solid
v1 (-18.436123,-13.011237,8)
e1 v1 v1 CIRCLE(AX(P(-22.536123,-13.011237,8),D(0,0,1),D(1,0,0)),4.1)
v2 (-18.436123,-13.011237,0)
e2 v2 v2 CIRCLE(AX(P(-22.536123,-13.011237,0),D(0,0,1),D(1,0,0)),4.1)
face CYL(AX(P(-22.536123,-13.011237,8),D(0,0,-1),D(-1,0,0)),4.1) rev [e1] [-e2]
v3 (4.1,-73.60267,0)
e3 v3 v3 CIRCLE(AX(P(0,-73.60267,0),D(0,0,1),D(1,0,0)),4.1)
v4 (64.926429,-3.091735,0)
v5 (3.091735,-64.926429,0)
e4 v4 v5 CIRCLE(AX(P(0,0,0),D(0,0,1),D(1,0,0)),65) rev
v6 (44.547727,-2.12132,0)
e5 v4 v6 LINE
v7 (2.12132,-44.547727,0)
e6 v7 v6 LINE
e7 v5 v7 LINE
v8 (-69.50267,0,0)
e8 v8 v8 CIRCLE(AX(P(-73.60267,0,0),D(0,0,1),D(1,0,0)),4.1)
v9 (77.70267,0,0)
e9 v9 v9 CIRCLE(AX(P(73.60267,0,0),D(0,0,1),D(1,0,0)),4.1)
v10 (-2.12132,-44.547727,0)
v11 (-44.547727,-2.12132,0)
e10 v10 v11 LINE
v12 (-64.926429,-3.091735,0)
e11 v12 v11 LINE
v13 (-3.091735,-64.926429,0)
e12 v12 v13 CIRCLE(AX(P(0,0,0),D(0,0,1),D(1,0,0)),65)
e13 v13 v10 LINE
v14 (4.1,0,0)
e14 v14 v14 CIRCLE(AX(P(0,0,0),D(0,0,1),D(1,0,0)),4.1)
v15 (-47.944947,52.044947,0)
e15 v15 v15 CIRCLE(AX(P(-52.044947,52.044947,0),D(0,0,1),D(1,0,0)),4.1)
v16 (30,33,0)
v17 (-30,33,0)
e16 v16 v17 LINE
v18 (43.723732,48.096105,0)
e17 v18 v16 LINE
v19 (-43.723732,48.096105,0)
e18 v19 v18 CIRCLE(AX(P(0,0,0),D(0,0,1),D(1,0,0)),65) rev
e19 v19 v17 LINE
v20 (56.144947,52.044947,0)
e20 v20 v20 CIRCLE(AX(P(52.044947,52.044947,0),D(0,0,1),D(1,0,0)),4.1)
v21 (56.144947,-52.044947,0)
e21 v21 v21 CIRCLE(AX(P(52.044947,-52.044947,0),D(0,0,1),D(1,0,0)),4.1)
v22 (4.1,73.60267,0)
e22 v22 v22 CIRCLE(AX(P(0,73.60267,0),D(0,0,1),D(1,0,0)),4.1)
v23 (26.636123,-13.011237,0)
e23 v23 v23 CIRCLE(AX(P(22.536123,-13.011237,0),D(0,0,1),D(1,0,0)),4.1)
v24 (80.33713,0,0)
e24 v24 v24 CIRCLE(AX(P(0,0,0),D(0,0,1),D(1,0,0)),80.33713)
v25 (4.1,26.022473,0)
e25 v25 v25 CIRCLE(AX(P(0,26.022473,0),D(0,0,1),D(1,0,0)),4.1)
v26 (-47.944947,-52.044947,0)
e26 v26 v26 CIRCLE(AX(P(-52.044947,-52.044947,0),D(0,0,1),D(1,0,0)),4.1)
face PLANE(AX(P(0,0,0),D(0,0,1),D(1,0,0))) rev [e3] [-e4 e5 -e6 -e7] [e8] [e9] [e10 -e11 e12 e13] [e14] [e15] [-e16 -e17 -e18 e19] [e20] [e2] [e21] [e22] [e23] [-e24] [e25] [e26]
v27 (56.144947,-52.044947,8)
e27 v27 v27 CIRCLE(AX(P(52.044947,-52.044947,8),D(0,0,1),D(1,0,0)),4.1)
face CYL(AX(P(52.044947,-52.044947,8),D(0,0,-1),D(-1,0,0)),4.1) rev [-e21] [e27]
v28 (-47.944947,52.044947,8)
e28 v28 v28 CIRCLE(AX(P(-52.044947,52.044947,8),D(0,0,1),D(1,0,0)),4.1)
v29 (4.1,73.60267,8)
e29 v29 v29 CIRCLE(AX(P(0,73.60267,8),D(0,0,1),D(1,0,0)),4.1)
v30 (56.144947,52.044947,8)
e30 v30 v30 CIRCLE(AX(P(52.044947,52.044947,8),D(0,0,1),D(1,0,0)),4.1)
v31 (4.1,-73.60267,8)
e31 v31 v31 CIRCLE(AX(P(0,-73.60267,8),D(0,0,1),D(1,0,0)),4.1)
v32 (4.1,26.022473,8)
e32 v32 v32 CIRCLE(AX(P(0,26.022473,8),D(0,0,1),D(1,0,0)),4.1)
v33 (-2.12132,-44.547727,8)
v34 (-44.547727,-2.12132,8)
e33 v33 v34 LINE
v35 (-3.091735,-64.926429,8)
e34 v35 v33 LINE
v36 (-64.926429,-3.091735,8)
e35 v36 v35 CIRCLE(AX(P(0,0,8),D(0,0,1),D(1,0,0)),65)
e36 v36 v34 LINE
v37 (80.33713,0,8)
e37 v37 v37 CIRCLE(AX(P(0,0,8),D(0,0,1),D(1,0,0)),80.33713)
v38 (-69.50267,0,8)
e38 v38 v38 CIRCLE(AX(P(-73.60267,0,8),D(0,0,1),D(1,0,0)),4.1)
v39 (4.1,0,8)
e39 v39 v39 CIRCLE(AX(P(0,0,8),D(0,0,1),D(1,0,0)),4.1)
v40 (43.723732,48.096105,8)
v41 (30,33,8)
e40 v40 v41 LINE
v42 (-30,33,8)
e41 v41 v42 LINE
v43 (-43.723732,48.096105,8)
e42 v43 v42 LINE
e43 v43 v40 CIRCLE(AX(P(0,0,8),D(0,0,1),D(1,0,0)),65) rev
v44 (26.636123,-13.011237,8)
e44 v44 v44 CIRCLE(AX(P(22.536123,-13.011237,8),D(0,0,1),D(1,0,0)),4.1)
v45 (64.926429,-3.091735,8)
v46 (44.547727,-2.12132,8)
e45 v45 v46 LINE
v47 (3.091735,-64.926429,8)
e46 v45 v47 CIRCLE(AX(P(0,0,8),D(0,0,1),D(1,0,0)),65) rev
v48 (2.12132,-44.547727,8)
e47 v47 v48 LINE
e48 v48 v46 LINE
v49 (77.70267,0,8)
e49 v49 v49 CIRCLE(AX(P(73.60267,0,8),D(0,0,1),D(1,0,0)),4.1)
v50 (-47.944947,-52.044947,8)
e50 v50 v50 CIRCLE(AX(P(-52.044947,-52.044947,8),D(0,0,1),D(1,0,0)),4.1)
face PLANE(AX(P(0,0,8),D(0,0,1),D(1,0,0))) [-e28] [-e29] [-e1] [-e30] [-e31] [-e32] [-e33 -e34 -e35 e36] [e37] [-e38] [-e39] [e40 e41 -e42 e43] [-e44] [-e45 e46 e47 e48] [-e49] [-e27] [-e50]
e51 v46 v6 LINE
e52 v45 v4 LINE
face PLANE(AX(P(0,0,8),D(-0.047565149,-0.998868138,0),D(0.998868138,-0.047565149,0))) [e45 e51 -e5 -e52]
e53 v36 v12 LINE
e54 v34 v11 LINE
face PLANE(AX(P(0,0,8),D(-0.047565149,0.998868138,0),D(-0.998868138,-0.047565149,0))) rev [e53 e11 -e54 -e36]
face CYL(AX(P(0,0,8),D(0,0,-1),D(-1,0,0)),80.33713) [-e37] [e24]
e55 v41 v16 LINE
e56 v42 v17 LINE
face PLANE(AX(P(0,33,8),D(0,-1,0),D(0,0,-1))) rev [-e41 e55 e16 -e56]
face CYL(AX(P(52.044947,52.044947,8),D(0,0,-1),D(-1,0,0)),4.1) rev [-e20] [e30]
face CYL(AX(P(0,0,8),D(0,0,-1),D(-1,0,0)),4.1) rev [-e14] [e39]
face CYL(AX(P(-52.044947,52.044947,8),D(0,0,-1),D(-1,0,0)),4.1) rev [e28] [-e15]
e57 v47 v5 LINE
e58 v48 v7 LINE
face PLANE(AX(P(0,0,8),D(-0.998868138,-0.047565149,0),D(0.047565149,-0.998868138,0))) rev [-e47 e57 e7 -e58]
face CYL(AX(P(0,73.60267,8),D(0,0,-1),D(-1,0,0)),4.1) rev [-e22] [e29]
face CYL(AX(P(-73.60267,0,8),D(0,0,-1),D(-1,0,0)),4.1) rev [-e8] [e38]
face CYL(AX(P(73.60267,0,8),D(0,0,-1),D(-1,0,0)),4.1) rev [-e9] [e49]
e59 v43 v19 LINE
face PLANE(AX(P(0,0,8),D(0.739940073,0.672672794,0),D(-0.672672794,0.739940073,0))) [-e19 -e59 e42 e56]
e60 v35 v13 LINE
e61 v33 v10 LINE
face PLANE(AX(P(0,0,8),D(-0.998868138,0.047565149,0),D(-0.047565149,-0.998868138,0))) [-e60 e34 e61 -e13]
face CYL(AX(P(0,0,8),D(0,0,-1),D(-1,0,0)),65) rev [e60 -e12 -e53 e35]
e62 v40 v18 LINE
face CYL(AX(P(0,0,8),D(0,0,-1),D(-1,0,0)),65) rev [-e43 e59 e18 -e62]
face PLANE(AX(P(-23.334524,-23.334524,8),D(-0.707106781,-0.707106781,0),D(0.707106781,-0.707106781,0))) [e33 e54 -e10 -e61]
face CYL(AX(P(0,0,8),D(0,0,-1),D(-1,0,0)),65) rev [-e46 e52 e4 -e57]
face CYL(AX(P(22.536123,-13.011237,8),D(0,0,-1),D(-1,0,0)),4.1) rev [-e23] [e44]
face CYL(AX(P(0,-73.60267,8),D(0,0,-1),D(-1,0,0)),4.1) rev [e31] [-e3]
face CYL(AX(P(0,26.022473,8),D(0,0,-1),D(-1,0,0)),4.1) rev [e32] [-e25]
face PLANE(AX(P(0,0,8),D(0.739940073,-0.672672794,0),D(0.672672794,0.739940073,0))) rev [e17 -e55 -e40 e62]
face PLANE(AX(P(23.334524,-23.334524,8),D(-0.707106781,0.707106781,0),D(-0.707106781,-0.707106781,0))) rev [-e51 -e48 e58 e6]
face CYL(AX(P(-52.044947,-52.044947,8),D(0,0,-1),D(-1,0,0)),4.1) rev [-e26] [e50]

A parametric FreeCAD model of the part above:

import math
import FreeCAD as App
import Part
import Sketcher

V = App.Vector
Q = App.Units.Quantity

doc = App.newDocument("Part")
body = doc.addObject("PartDesign::Body", "Body")

sketch1 = doc.addObject("Sketcher::SketchObject", "Sketch")
body.addObject(sketch1)
sketch1.AttachmentSupport = (doc.XY_Plane, [""])
sketch1.MapMode = "FlatFace"
sketch1.addGeometry([
    Part.Circle(V(0, 0, 0), V(0, 0, 1), 80.33713),
    Part.Circle(V(-52.044947, -52.044947, 0), V(0, 0, 1), 4.1),
    Part.ArcOfCircle(Part.Circle(V(0, 0, 0), V(0, 0, 1), 65), math.radians(-177.273689), math.radians(-92.726311)),
    Part.LineSegment(V(-64.926429, -3.091735, 0), V(-44.547727, -2.12132, 0)),
    Part.LineSegment(V(-44.547727, -2.12132, 0), V(-2.12132, -44.547727, 0)),
    Part.LineSegment(V(-2.12132, -44.547727, 0), V(-3.091735, -64.926429, 0)),
    Part.Circle(V(-22.536123, -13.011237, 0), V(0, 0, 1), 4.1),
    Part.Circle(V(0, -73.60267, 0), V(0, 0, 1), 4.1),
    Part.Circle(V(52.044947, -52.044947, 0), V(0, 0, 1), 4.1),
    Part.ArcOfCircle(Part.Circle(V(0, 0, 0), V(0, 0, 1), 65), math.radians(-87.273689), math.radians(-2.726311)),
    Part.LineSegment(V(3.091735, -64.926429, 0), V(2.12132, -44.547727, 0)),
    Part.LineSegment(V(2.12132, -44.547727, 0), V(44.547727, -2.12132, 0)),
    Part.LineSegment(V(44.547727, -2.12132, 0), V(64.926429, -3.091735, 0)),
    Part.Circle(V(22.536123, -13.011237, 0), V(0, 0, 1), 4.1),
    Part.Circle(V(-73.60267, 0, 0), V(0, 0, 1), 4.1),
    Part.Circle(V(-52.044947, 52.044947, 0), V(0, 0, 1), 4.1),
    Part.Circle(V(0, 0, 0), V(0, 0, 1), 4.1),
    Part.Circle(V(0, 26.022473, 0), V(0, 0, 1), 4.1),
    Part.Circle(V(73.60267, 0, 0), V(0, 0, 1), 4.1),
    Part.ArcOfCircle(Part.Circle(V(0, 0, 0), V(0, 0, 1), 65), math.radians(47.726311), math.radians(132.273689)),
    Part.LineSegment(V(43.723732, 48.096105, 0), V(30, 33, 0)),
    Part.LineSegment(V(30, 33, 0), V(-30, 33, 0)),
    Part.LineSegment(V(-30, 33, 0), V(-43.723732, 48.096105, 0)),
    Part.Circle(V(0, 73.60267, 0), V(0, 0, 1), 4.1),
    Part.Circle(V(52.044947, 52.044947, 0), V(0, 0, 1), 4.1),
], False)
sketch1.addConstraint([
    Sketcher.Constraint("Coincident", 2, 1, 3, 1),
    Sketcher.Constraint("Coincident", 3, 2, 4, 1),
    Sketcher.Constraint("Coincident", 4, 2, 5, 1),
    Sketcher.Constraint("Coincident", 5, 2, 2, 2),
    Sketcher.Constraint("Coincident", 9, 1, 10, 1),
    Sketcher.Constraint("Coincident", 10, 2, 11, 1),
    Sketcher.Constraint("Coincident", 11, 2, 12, 1),
    Sketcher.Constraint("Coincident", 12, 2, 9, 2),
    Sketcher.Constraint("Coincident", 19, 1, 20, 1),
    Sketcher.Constraint("Coincident", 20, 2, 21, 1),
    Sketcher.Constraint("Coincident", 21, 2, 22, 1),
    Sketcher.Constraint("Coincident", 22, 2, 19, 2),
    Sketcher.Constraint("Horizontal", 21),
    Sketcher.Constraint("Coincident", 0, 3, -1, 1),
    Sketcher.Constraint("Coincident", 2, 3, -1, 1),
    Sketcher.Constraint("Coincident", 9, 3, -1, 1),
    Sketcher.Constraint("Coincident", 16, 3, -1, 1),
    Sketcher.Constraint("Coincident", 19, 3, -1, 1),
    Sketcher.Constraint("Equal", 1, 6),
    Sketcher.Constraint("Equal", 6, 7),
    Sketcher.Constraint("Equal", 7, 8),
    Sketcher.Constraint("Equal", 2, 9),
    Sketcher.Constraint("Equal", 8, 13),
    Sketcher.Constraint("Equal", 13, 14),
    Sketcher.Constraint("Equal", 14, 15),
    Sketcher.Constraint("Equal", 15, 16),
    Sketcher.Constraint("Equal", 16, 17),
    Sketcher.Constraint("Equal", 17, 18),
    Sketcher.Constraint("Equal", 9, 19),
    Sketcher.Constraint("Equal", 18, 23),
    Sketcher.Constraint("Equal", 23, 24),
    Sketcher.Constraint("Symmetric", 8, 3, 15, 3, -1, 1),
    Sketcher.Constraint("Symmetric", 14, 3, 18, 3, -1, 1),
    Sketcher.Constraint("Symmetric", 7, 3, 23, 3, -1, 1),
    Sketcher.Constraint("Symmetric", 1, 3, 24, 3, -1, 1),
    Sketcher.Constraint("Symmetric", 1, 3, 8, 3, -2),
    Sketcher.Constraint("Symmetric", 6, 3, 13, 3, -2),
    Sketcher.Constraint("Symmetric", 4, 2, 10, 2, -2),
    Sketcher.Constraint("Symmetric", 3, 2, 11, 2, -2),
    Sketcher.Constraint("PointOnObject", 7, 3, -2),
    Sketcher.Constraint("PointOnObject", 14, 3, -1),
    Sketcher.Constraint("PointOnObject", 17, 3, -2),
    Sketcher.Constraint("Perpendicular", 3, 10),
    Sketcher.Constraint("Perpendicular", 4, 11),
    Sketcher.Constraint("Perpendicular", 5, 12),
    Sketcher.Constraint("Horizontal", 5, 2, 9, 1),
    Sketcher.Constraint("Horizontal", 19, 1, 22, 2),
    Sketcher.Constraint("Equal", 3, 5),
    Sketcher.Constraint("Equal", 12, 20),
    Sketcher.Constraint("Equal", 20, 22),
    Sketcher.Constraint("Radius", 2, Q("65 mm")),
    Sketcher.Constraint("Diameter", 1, Q("8.2 mm")),
    Sketcher.Constraint("DistanceX", 21, 2, 21, 1, Q("60 mm")),
    Sketcher.Constraint("Distance", 4, Q("60 mm")),
    Sketcher.Constraint("DistanceY", -1, 1, 20, 2, Q("33 mm")),
    Sketcher.Constraint("Diameter", 0, Q("160.674261 mm")),
    Sketcher.Constraint("DistanceY", 6, 3, 2, 1, Q("9.919502 mm")),
    Sketcher.Constraint("DistanceX", 2, 1, 3, 2, Q("20.378702 mm")),
    Sketcher.Constraint("DistanceY", 7, 3, -1, 1, Q("73.60267 mm")),
    Sketcher.Constraint("DistanceX", 14, 3, -1, 1, Q("73.60267 mm")),
    Sketcher.Constraint("DistanceX", -1, 1, 19, 1, Q("43.723732 mm")),
    Sketcher.Constraint("DistanceY", 1, 3, 6, 3, Q("39.03371 mm")),
    Sketcher.Constraint("DistanceX", 6, 3, 8, 3, Q("74.58107 mm")),
    Sketcher.Constraint("DistanceY", 6, 3, 17, 3, Q("39.03371 mm")),
    Sketcher.Constraint("DistanceX", 6, 3, 5, 2, Q("19.444388 mm")),
])
pad1 = doc.addObject("PartDesign::Pad", "Pad")
body.addObject(pad1)
pad1.Profile = sketch1
pad1.Length = 8

doc.recompute()
